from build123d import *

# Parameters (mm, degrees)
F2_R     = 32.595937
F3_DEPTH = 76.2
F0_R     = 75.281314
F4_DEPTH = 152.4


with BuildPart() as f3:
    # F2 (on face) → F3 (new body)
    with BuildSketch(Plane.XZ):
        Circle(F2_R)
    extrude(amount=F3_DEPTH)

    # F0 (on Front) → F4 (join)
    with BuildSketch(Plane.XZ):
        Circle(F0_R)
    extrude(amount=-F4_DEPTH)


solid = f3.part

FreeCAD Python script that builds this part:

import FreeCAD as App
import Part
import Sketcher
from FreeCAD import Vector

doc = App.newDocument("Part")
params = doc.addObject("Spreadsheet::Sheet", "Params")
for row, (alias, value) in enumerate([
    ("pad1_length", "3 in"),
    ("pad2_length", "6 in"),
], start=1):
    params.set(f"A{row}", alias)
    params.set(f"B{row}", "=" + value)
    params.setAlias(f"B{row}", alias)

body = doc.addObject("PartDesign::Body", "Body")

# Sketch on XZ plane
sketch1 = doc.addObject("Sketcher::SketchObject", "Sketch")
body.addObject(sketch1)
sketch1.AttachmentSupport = (doc.XZ_Plane, [""])
sketch1.MapMode = "FlatFace"
sketch1.addGeometry(Part.Circle(Vector(0, 0, 0), Vector(0, 0, 1), 33), False)
sketch1.addConstraint(Sketcher.Constraint("Coincident", 0, 3, -1, 1))
sketch1.addConstraint(Sketcher.Constraint("Diameter", 0, 65.191874))
pad1 = doc.addObject("PartDesign::Pad", "Pad")
body.addObject(pad1)
pad1.Profile = sketch1
pad1.setExpression("Length", "Params.pad1_length")

# Sketch on XZ plane
sketch2 = doc.addObject("Sketcher::SketchObject", "Sketch001")
body.addObject(sketch2)
sketch2.AttachmentSupport = (doc.XZ_Plane, [""])
sketch2.MapMode = "FlatFace"
sketch2.addGeometry(Part.Circle(Vector(0, 0, 0), Vector(0, 0, 1), 75), False)
sketch2.addConstraint(Sketcher.Constraint("Coincident", 0, 3, -1, 1))
sketch2.addConstraint(Sketcher.Constraint("Diameter", 0, 150.562628))
pad2 = doc.addObject("PartDesign::Pad", "Pad001")
body.addObject(pad2)
pad2.Profile = sketch2
pad2.setExpression("Length", "Params.pad2_length")
pad2.Reversed = True

doc.recompute()
